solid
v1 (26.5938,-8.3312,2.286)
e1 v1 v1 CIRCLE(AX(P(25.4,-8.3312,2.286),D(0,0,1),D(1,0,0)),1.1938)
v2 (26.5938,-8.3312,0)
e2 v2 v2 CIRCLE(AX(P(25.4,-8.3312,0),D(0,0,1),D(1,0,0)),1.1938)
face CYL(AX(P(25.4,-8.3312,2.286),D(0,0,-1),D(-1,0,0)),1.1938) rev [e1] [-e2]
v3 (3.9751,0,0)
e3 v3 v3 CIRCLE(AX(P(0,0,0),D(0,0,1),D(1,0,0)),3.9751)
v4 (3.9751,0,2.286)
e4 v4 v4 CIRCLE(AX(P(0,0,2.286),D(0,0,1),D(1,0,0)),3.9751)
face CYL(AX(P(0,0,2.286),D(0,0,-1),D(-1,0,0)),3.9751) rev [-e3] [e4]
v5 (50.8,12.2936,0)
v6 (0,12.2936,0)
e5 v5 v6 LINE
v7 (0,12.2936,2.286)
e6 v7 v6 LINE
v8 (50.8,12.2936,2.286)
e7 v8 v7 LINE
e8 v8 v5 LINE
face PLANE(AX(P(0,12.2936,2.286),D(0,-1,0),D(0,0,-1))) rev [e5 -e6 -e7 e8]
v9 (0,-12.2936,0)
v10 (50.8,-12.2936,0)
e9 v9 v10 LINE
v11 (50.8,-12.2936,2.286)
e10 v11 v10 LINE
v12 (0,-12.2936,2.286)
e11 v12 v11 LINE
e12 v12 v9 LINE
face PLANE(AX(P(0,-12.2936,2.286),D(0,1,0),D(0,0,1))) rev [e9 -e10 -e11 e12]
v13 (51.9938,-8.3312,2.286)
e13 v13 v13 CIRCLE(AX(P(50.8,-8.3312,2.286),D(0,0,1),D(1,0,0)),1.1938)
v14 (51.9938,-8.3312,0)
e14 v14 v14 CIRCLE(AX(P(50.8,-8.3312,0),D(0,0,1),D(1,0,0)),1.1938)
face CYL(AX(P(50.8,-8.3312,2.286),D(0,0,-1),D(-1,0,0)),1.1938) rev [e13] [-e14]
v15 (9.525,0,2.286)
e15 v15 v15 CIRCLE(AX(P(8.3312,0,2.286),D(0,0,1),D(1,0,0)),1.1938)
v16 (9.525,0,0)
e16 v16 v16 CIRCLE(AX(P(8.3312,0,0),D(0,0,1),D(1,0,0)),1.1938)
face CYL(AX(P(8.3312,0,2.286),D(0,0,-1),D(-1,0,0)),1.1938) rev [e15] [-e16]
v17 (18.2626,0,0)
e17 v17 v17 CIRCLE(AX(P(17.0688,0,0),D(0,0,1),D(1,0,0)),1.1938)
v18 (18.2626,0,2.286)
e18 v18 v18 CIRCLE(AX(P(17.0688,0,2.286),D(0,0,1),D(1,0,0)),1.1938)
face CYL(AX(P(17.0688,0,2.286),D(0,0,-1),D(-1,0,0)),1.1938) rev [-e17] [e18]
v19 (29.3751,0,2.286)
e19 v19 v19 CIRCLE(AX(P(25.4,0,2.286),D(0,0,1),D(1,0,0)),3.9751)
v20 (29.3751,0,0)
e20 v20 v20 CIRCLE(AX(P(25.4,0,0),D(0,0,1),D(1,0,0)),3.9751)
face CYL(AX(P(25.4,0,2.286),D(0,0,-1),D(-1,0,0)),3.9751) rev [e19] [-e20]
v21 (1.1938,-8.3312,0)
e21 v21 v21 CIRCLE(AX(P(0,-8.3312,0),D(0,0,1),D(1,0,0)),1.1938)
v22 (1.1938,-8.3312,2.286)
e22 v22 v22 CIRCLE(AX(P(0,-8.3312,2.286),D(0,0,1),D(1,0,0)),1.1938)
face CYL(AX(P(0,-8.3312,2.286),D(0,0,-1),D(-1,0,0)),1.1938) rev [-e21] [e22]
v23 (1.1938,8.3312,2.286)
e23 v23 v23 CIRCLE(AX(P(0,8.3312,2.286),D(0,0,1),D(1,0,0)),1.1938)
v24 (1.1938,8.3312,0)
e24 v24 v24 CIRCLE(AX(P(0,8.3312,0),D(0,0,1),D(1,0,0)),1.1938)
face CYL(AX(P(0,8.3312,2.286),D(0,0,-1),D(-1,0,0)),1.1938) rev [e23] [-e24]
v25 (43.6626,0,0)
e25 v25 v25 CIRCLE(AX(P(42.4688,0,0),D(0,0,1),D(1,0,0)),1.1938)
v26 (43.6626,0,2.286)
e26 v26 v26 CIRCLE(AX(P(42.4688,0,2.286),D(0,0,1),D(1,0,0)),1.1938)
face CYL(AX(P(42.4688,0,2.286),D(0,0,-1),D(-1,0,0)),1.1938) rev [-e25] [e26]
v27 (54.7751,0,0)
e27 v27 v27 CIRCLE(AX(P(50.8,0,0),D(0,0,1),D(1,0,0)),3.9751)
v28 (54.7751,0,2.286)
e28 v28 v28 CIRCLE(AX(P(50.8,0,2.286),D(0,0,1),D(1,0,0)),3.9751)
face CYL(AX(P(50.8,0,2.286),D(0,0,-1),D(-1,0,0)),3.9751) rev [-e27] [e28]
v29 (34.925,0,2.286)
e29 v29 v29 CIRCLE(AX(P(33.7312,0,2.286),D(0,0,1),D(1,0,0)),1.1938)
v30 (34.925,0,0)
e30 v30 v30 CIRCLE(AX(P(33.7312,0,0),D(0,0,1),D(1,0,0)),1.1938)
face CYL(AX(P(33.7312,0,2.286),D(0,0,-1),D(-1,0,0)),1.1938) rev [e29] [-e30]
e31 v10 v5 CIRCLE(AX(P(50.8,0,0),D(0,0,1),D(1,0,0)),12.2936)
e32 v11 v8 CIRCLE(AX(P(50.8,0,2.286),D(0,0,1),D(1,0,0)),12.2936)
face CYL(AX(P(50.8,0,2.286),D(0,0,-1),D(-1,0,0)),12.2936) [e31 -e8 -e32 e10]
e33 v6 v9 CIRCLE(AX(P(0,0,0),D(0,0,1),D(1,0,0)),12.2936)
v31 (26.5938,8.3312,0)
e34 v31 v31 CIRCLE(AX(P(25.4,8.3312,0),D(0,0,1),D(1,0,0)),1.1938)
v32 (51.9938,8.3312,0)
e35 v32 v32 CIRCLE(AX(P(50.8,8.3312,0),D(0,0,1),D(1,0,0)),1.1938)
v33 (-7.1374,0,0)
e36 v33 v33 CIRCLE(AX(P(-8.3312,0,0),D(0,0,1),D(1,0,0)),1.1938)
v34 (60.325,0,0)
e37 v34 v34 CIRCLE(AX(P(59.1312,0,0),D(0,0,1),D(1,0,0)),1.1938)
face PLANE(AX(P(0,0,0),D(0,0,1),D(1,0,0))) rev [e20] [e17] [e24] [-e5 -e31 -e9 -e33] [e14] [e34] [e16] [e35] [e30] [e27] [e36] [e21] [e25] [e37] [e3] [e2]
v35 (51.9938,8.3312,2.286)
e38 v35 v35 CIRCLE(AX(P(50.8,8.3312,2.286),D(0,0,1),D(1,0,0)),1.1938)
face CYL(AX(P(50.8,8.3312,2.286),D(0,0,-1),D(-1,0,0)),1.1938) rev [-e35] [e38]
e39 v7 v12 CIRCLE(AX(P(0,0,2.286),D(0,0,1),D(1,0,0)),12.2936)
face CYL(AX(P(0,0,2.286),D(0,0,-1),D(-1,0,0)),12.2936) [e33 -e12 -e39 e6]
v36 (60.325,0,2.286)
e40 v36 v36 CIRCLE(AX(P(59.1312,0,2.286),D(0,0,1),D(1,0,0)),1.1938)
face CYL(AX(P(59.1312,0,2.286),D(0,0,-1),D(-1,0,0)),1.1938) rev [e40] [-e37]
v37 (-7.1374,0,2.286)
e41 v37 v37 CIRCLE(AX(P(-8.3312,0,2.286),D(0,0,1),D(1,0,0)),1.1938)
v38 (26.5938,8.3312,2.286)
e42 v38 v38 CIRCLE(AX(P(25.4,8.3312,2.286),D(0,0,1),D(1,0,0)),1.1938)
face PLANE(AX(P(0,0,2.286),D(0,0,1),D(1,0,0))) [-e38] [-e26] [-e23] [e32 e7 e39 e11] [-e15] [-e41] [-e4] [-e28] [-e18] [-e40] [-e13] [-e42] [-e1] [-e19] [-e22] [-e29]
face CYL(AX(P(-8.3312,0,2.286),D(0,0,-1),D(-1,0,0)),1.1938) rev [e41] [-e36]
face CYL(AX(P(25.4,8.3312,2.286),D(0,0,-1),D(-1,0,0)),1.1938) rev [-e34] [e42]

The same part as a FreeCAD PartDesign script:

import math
import FreeCAD as App
import Part
import Sketcher
Q = App.Units.Quantity

doc = App.newDocument("Part")
body = doc.addObject("PartDesign::Body", "Body")

# Sketch on XY plane
sketch1 = body.newObject("Sketcher::SketchObject", "Sketch")
sketch1.AttachmentSupport = (doc.getObject("XY_Plane"), [""])
sketch1.MapMode = "FlatFace"
sketch1.addGeometry(Part.LineSegment(App.Vector(50.8, 12.3, 0), App.Vector(0, 12.3, 0)), False)
sketch1.addGeometry(Part.ArcOfCircle(Part.Circle(App.Vector(0, 0, 0), App.Vector(0, 0, 1), 12.3), math.radians(90), math.radians(270)), False)
sketch1.addGeometry(Part.LineSegment(App.Vector(0, -12.3, 0), App.Vector(50.8, -12.3, 0)), False)
sketch1.addGeometry(Part.ArcOfCircle(Part.Circle(App.Vector(50.8, 0, 0), App.Vector(0, 0, 1), 12.3), math.radians(-90), math.radians(90)), False)
sketch1.addGeometry(Part.Circle(App.Vector(50.8, -8.3, 0), App.Vector(0, 0, 1), 1.2), False)
sketch1.addGeometry(Part.Circle(App.Vector(25.4, -8.3, 0), App.Vector(0, 0, 1), 1.2), False)
sketch1.addGeometry(Part.Circle(App.Vector(0, -8.3, 0), App.Vector(0, 0, 1), 1.2), False)
sketch1.addGeometry(Part.Circle(App.Vector(59.1, 0, 0), App.Vector(0, 0, 1), 1.2), False)
sketch1.addGeometry(Part.Circle(App.Vector(50.8, 0, 0), App.Vector(0, 0, 1), 4), False)
sketch1.addGeometry(Part.Circle(App.Vector(42.5, 0, 0), App.Vector(0, 0, 1), 1.2), False)
sketch1.addGeometry(Part.Circle(App.Vector(33.7, 0, 0), App.Vector(0, 0, 1), 1.2), False)
sketch1.addGeometry(Part.Circle(App.Vector(50.8, 8.3, 0), App.Vector(0, 0, 1), 1.2), False)
sketch1.addGeometry(Part.Circle(App.Vector(25.4, 0, 0), App.Vector(0, 0, 1), 4), False)
sketch1.addGeometry(Part.Circle(App.Vector(17.1, 0, 0), App.Vector(0, 0, 1), 1.2), False)
sketch1.addGeometry(Part.Circle(App.Vector(8.3, 0, 0), App.Vector(0, 0, 1), 1.2), False)
sketch1.addGeometry(Part.Circle(App.Vector(0, 0, 0), App.Vector(0, 0, 1), 4), False)
sketch1.addGeometry(Part.Circle(App.Vector(-8.3, 0, 0), App.Vector(0, 0, 1), 1.2), False)
sketch1.addGeometry(Part.Circle(App.Vector(25.4, 8.3, 0), App.Vector(0, 0, 1), 1.2), False)
sketch1.addGeometry(Part.Circle(App.Vector(0, 8.3, 0), App.Vector(0, 0, 1), 1.2), False)
sketch1.addConstraint(Sketcher.Constraint("Tangent", 0, 2, 1, 1))
sketch1.addConstraint(Sketcher.Constraint("Tangent", 1, 2, 2, 1))
sketch1.addConstraint(Sketcher.Constraint("Tangent", 2, 2, 3, 1))
sketch1.addConstraint(Sketcher.Constraint("Tangent", 3, 2, 0, 1))
sketch1.addConstraint(Sketcher.Constraint("Horizontal", 0))
sketch1.addConstraint(Sketcher.Constraint("Horizontal", 2))
sketch1.addConstraint(Sketcher.Constraint("Coincident", 1, 3, -1, 1))
sketch1.addConstraint(Sketcher.Constraint("Coincident", 15, 3, -1, 1))
sketch1.addConstraint(Sketcher.Constraint("Coincident", 8, 3, 3, 3))
sketch1.addConstraint(Sketcher.Constraint("Equal", 4, 5))
sketch1.addConstraint(Sketcher.Constraint("Equal", 5, 6))
sketch1.addConstraint(Sketcher.Constraint("Equal", 6, 7))
sketch1.addConstraint(Sketcher.Constraint("Equal", 7, 9))
sketch1.addConstraint(Sketcher.Constraint("Equal", 9, 10))
sketch1.addConstraint(Sketcher.Constraint("Equal", 10, 11))
sketch1.addConstraint(Sketcher.Constraint("Equal", 8, 12))
sketch1.addConstraint(Sketcher.Constraint("Equal", 11, 13))
sketch1.addConstraint(Sketcher.Constraint("Equal", 13, 14))
sketch1.addConstraint(Sketcher.Constraint("Equal", 12, 15))
sketch1.addConstraint(Sketcher.Constraint("Equal", 14, 16))
sketch1.addConstraint(Sketcher.Constraint("Equal", 16, 17))
sketch1.addConstraint(Sketcher.Constraint("Equal", 17, 18))
sketch1.addConstraint(Sketcher.Constraint("Symmetric", 14, 3, 16, 3, -1, 1))
sketch1.addConstraint(Sketcher.Constraint("Symmetric", 6, 3, 18, 3, -1, 1))
sketch1.addConstraint(Sketcher.Constraint("Symmetric", 4, 3, 11, 3, -1))
sketch1.addConstraint(Sketcher.Constraint("Symmetric", 5, 3, 17, 3, -1))
sketch1.addConstraint(Sketcher.Constraint("PointOnObject", 6, 3, -2))
sketch1.addConstraint(Sketcher.Constraint("PointOnObject", 7, 3, -1))
sketch1.addConstraint(Sketcher.Constraint("PointOnObject", 9, 3, -1))
sketch1.addConstraint(Sketcher.Constraint("PointOnObject", 10, 3, -1))
sketch1.addConstraint(Sketcher.Constraint("PointOnObject", 12, 3, -1))
sketch1.addConstraint(Sketcher.Constraint("PointOnObject", 13, 3, -1))
sketch1.addConstraint(Sketcher.Constraint("PointOnObject", 14, 3, -1))
sketch1.addConstraint(Sketcher.Constraint("Horizontal", 4, 3, 5, 3))
sketch1.addConstraint(Sketcher.Constraint("Horizontal", 5, 3, 6, 3))
sketch1.addConstraint(Sketcher.Constraint("Vertical", 3, 3, 4, 3))
sketch1.addConstraint(Sketcher.Constraint("Vertical", 5, 3, 12, 3))
sketch1.addConstraint(Sketcher.Constraint("DistanceX", 0, 2, 0, 1, Q("2 in")))
sketch1.addConstraint(Sketcher.Constraint("Diameter", 4, Q("0.094 in")))
sketch1.addConstraint(Sketcher.Constraint("Diameter", 8, Q("0.313 in")))
sketch1.addConstraint(Sketcher.Constraint("DistanceX", -1, 1, 5, 3, Q("1 in")))
sketch1.addConstraint(Sketcher.Constraint("Radius", 1, Q("0.484 in")))
sketch1.addConstraint(Sketcher.Constraint("DistanceX", 16, 3, 13, 3, Q("1 in")))
sketch1.addConstraint(Sketcher.Constraint("DistanceY", 4, 3, -1, 1, Q("0.328 in")))
sketch1.addConstraint(Sketcher.Constraint("DistanceX", -1, 1, 7, 3, Q("2.328 in")))
sketch1.addConstraint(Sketcher.Constraint("DistanceX", -1, 1, 9, 3, Q("1.672 in")))
sketch1.addConstraint(Sketcher.Constraint("DistanceX", -1, 1, 10, 3, Q("1.328 in")))
sketch1.addConstraint(Sketcher.Constraint("DistanceX", -1, 1, 13, 3, Q("0.672 in")))
pad1 = body.newObject("PartDesign::Pad", "Pad")
pad1.Profile = sketch1
pad1.Length = Q("0.09 in")

doc.recompute()
